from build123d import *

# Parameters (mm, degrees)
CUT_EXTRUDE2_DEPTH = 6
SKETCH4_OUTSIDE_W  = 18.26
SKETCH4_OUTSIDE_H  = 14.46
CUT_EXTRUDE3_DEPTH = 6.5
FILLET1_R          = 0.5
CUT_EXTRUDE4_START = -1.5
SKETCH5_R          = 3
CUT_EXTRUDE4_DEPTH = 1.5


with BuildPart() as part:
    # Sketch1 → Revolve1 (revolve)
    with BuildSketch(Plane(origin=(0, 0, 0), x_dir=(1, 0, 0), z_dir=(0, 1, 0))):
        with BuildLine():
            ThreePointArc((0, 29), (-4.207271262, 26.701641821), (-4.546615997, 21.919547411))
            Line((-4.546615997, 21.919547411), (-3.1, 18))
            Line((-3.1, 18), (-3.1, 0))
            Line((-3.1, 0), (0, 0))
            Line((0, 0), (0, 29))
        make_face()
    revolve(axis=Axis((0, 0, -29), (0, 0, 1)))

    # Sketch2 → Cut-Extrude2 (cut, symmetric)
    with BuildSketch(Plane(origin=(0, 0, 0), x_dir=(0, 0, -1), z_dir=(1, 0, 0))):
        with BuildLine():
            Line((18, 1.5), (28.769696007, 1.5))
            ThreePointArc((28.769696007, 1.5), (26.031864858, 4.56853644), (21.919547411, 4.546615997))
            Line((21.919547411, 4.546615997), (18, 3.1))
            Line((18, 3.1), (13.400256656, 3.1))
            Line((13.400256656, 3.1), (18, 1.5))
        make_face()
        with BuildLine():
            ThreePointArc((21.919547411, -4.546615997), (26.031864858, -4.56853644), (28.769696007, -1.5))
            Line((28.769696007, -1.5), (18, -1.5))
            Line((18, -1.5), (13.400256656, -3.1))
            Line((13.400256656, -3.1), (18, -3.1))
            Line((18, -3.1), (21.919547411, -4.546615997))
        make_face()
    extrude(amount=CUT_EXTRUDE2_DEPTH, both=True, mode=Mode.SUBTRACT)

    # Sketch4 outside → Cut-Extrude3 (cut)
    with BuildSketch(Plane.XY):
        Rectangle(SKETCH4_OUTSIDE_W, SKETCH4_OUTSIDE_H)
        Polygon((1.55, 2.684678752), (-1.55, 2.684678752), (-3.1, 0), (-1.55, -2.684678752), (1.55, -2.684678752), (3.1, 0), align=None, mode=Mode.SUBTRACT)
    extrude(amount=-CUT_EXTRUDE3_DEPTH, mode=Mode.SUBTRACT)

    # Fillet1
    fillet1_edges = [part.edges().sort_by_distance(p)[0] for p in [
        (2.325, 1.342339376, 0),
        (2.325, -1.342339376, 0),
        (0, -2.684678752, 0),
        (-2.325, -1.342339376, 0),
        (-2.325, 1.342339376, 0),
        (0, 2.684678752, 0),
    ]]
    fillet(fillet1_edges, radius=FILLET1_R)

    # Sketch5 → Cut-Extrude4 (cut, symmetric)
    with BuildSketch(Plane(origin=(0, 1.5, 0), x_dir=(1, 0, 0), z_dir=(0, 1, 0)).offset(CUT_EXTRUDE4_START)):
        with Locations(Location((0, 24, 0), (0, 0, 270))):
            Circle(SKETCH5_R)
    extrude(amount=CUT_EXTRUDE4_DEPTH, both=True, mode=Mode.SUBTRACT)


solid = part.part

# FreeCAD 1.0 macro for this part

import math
import FreeCAD as App
import Part
import Sketcher
from FreeCAD import Vector
Q = App.Units.Quantity


def edges_at(feature, points):
    """Names of the edges that pass closest to the given points."""
    edges = feature.Shape.Edges
    near = lambda p: min(range(len(edges)), key=lambda i: edges[i].distToShape(Part.Vertex(*p))[0])
    return sorted({f"Edge{near(p) + 1}" for p in points})


def add_polygon(sketch, points):
    """Adds a closed chain of lines whose ends are joined by coincident constraints."""
    first, n = sketch.GeometryCount, len(points)
    for a, b in zip(points, points[1:] + points[:1]):
        sketch.addGeometry(Part.LineSegment(App.Vector(*a, 0), App.Vector(*b, 0)), False)
    for i in range(n):
        sketch.addConstraint(Sketcher.Constraint("Coincident", first + i, 2, first + (i + 1) % n, 1))

doc = App.newDocument("Part")
params = doc.addObject("Spreadsheet::Sheet", "Params")
for row, (alias, value) in enumerate([
    ("sketch1_radius", "5 mm"),
    ("sketch1_height", "18 mm"),
    ("sketch1_height2", "29 mm"),
    ("sketch1_width", "3.1 mm"),
    ("revolution_angle", "360 deg"),
    ("sketch2_radius", "5 mm"),
    ("pocket1_length", "12 mm"),
    ("sketch3_width", "3.1 mm"),
    ("sketch3_length", "3.1 mm"),
    ("sketch3_width2", "18.26 mm"),
    ("sketch3_height", "14.46 mm"),
    ("pocket2_length", "6.5 mm"),
    ("fillet_radius", "0.5 mm"),
    ("sketch4_diameter", "6 mm"),
    ("pocket3_length", "3 mm"),
], start=1):
    params.set(f"A{row}", alias)
    params.set(f"B{row}", "=" + value)
    params.setAlias(f"B{row}", alias)

body = doc.addObject("PartDesign::Body", "Body")

sketch1 = doc.addObject("Sketcher::SketchObject", "Sketch")
body.addObject(sketch1)
sketch1.AttachmentSupport = (doc.XZ_Plane, [""])
sketch1.MapMode = "FlatFace"
sketch1.addGeometry([
    Part.ArcOfCircle(Part.Circle(Vector(0, -24, 0), Vector(0, 0, 1), 5), math.radians(155.41199), math.radians(270)),
    Part.LineSegment(Vector(-4.546616, -21.919547, 0), Vector(-3.1, -18, 0)),
    Part.LineSegment(Vector(-3.1, -18, 0), Vector(-3.1, 0, 0)),
    Part.LineSegment(Vector(-3.1, 0, 0), Vector(0, 0, 0)),
    Part.LineSegment(Vector(0, 0, 0), Vector(0, -29, 0)),
], False)
sketch1.addConstraint([
    Sketcher.Constraint("Coincident", 0, 1, 1, 1),
    Sketcher.Constraint("Coincident", 1, 2, 2, 1),
    Sketcher.Constraint("Coincident", 2, 2, 3, 1),
    Sketcher.Constraint("Coincident", 3, 2, 4, 1),
    Sketcher.Constraint("Coincident", 4, 2, 0, 2),
    Sketcher.Constraint("Vertical", 2),
    Sketcher.Constraint("Horizontal", 3),
    Sketcher.Constraint("Vertical", 4),
    Sketcher.Constraint("Coincident", 3, 2, -1, 1),
    Sketcher.Constraint("PointOnObject", 0, 3, -2),
    Sketcher.Constraint("Radius", 0, 5.0),
    Sketcher.Constraint("DistanceY", 2, 1, 2, 2, 18.0),
    Sketcher.Constraint("DistanceY", 4, 2, 4, 1, 29.0),
    Sketcher.Constraint("DistanceX", 3, 1, 3, 2, 3.1),
    Sketcher.Constraint("Distance", 1, 4.177984),
])
sketch1.setExpression("Constraints[10]", "Params.sketch1_radius")
sketch1.setExpression("Constraints[11]", "Params.sketch1_height")
sketch1.setExpression("Constraints[12]", "Params.sketch1_height2")
sketch1.setExpression("Constraints[13]", "Params.sketch1_width")
revolution = doc.addObject("PartDesign::Revolution", "Revolution")
body.addObject(revolution)
revolution.Profile = sketch1
revolution.ReferenceAxis = (sketch1, ["V_Axis"])
revolution.setExpression("Angle", "Params.revolution_angle")

sketch2 = doc.addObject("Sketcher::SketchObject", "Sketch001")
body.addObject(sketch2)
sketch2.AttachmentSupport = (doc.YZ_Plane, [""])
sketch2.MapMode = "FlatFace"
sketch2.addGeometry([
    Part.LineSegment(Vector(1.5, -18, 0), Vector(1.5, -28.769696, 0)),
    Part.ArcOfCircle(Part.Circle(Vector(0, -24, 0), Vector(0, 0, 1), 5), math.radians(-72.542397), math.radians(24.58801)),
    Part.LineSegment(Vector(4.546616, -21.919547, 0), Vector(3.1, -18, 0)),
    Part.LineSegment(Vector(3.1, -18, 0), Vector(3.1, -13.400257, 0)),
    Part.LineSegment(Vector(3.1, -13.400257, 0), Vector(1.5, -18, 0)),
    Part.ArcOfCircle(Part.Circle(Vector(0, -24, 0), Vector(0, 0, 1), 5), math.radians(155.41199), math.radians(252.542397)),
    Part.LineSegment(Vector(-1.5, -28.769696, 0), Vector(-1.5, -18, 0)),
    Part.LineSegment(Vector(-1.5, -18, 0), Vector(-3.1, -13.400257, 0)),
    Part.LineSegment(Vector(-3.1, -13.400257, 0), Vector(-3.1, -18, 0)),
    Part.LineSegment(Vector(-3.1, -18, 0), Vector(-4.546616, -21.919547, 0)),
], False)
sketch2.addConstraint([
    Sketcher.Constraint("Coincident", 0, 2, 1, 1),
    Sketcher.Constraint("Coincident", 1, 2, 2, 1),
    Sketcher.Constraint("Coincident", 2, 2, 3, 1),
    Sketcher.Constraint("Coincident", 3, 2, 4, 1),
    Sketcher.Constraint("Coincident", 4, 2, 0, 1),
    Sketcher.Constraint("Coincident", 5, 2, 6, 1),
    Sketcher.Constraint("Coincident", 6, 2, 7, 1),
    Sketcher.Constraint("Coincident", 7, 2, 8, 1),
    Sketcher.Constraint("Coincident", 8, 2, 9, 1),
    Sketcher.Constraint("Coincident", 9, 2, 5, 1),
    Sketcher.Constraint("Vertical", 0),
    Sketcher.Constraint("Vertical", 3),
    Sketcher.Constraint("Vertical", 6),
    Sketcher.Constraint("Vertical", 8),
    Sketcher.Constraint("Coincident", 5, 3, 1, 3),
    Sketcher.Constraint("Equal", 1, 5),
    Sketcher.Constraint("Symmetric", 0, 2, 5, 2, -2),
    Sketcher.Constraint("Symmetric", 3, 2, 7, 2, -2),
    Sketcher.Constraint("Horizontal", 2, 2, 4, 2),
    Sketcher.Constraint("Horizontal", 4, 2, 6, 2),
    Sketcher.Constraint("Horizontal", 6, 2, 8, 2),
    Sketcher.Constraint("Horizontal", 1, 2, 9, 2),
    Sketcher.Constraint("Radius", 1, 5.0),
    Sketcher.Constraint("DistanceY", 1, 3, -1, 1, 24.0),
    Sketcher.Constraint("DistanceY", 2, 2, -1, 1, 18.0),
    Sketcher.Constraint("DistanceX", 5, 2, 0, 2, 3.0),
    Sketcher.Constraint("DistanceX", -1, 1, 2, 2, 3.1),
    Sketcher.Constraint("Angle", 4, Q("-109.18 deg")),
    Sketcher.Constraint("DistanceY", 0, 2, 1, 2, 6.850149),
])
sketch2.setExpression("Constraints[22]", "Params.sketch2_radius")
pocket1 = doc.addObject("PartDesign::Pocket", "Pocket")
body.addObject(pocket1)
pocket1.Profile = sketch2
pocket1.setExpression("Length", "Params.pocket1_length")
pocket1.Midplane = True

sketch3 = doc.addObject("Sketcher::SketchObject", "Sketch002")
body.addObject(sketch3)
sketch3.AttachmentSupport = (doc.XY_Plane, [""])
sketch3.MapMode = "FlatFace"
add_polygon(sketch3, [(-9.13, 7.23), (-9.13, -7.23), (9.13, -7.23), (9.13, 7.23)])
add_polygon(sketch3, [(-1.55, 2.684679), (1.55, 2.684679), (3.1, 0), (1.55, -2.684679), (-1.55, -2.684679), (-3.1, 0)])
sketch3.addConstraint([
    Sketcher.Constraint("Vertical", 0),
    Sketcher.Constraint("Horizontal", 1),
    Sketcher.Constraint("Vertical", 2),
    Sketcher.Constraint("Horizontal", 3),
    Sketcher.Constraint("Horizontal", 4),
    Sketcher.Constraint("Horizontal", 7),
    Sketcher.Constraint("Symmetric", 0, 2, 2, 2, -1, 1),
    Sketcher.Constraint("Symmetric", 4, 2, 7, 2, -1, 1),
    Sketcher.Constraint("Symmetric", 5, 2, 8, 2, -1, 1),
    Sketcher.Constraint("PointOnObject", 5, 2, -1),
    Sketcher.Constraint("Parallel", 6, 9),
    Sketcher.Constraint("Vertical", 4, 2, 6, 2),
    Sketcher.Constraint("Angle", 5, Q("-60 deg")),
    Sketcher.Constraint("DistanceX", 4, 1, 4, 2, 3.1),
    Sketcher.Constraint("Distance", 5, 3.1),
    Sketcher.Constraint("DistanceX", 1, 1, 1, 2, 18.26),
    Sketcher.Constraint("DistanceY", 0, 2, 0, 1, 14.46),
])
sketch3.setExpression("Constraints[23]", "Params.sketch3_width")
sketch3.setExpression("Constraints[24]", "Params.sketch3_length")
sketch3.setExpression("Constraints[25]", "Params.sketch3_width2")
sketch3.setExpression("Constraints[26]", "Params.sketch3_height")
pocket2 = doc.addObject("PartDesign::Pocket", "Pocket001")
body.addObject(pocket2)
pocket2.Profile = sketch3
pocket2.setExpression("Length", "Params.pocket2_length")
doc.recompute()

fillet = doc.addObject("PartDesign::Fillet", "Fillet")
body.addObject(fillet)
fillet.Base = (pocket2, edges_at(pocket2, [
    (2.325, 1.342, 0),
    (2.325, -1.342, 0),
    (0, -2.685, 0),
    (-2.325, -1.342, 0),
    (-2.325, 1.342, 0),
    (0, 2.685, 0),
]))
fillet.setExpression("Radius", "Params.fillet_radius")

sketch4 = doc.addObject("Sketcher::SketchObject", "Sketch003")
body.addObject(sketch4)
sketch4.AttachmentSupport = (doc.XZ_Plane, [""])
sketch4.MapMode = "FlatFace"
sketch4.addGeometry(Part.Circle(Vector(0, -24, 0), Vector(0, 0, 1), 3), False)
sketch4.addConstraint([
    Sketcher.Constraint("PointOnObject", 0, 3, -2),
    Sketcher.Constraint("Diameter", 0, 6.0),
    Sketcher.Constraint("DistanceY", 0, 3, -1, 1, 24.0),
])
sketch4.setExpression("Constraints[1]", "Params.sketch4_diameter")
pocket3 = doc.addObject("PartDesign::Pocket", "Pocket002")
body.addObject(pocket3)
pocket3.Profile = sketch4
pocket3.setExpression("Length", "Params.pocket3_length")
pocket3.Midplane = True

doc.recompute()
